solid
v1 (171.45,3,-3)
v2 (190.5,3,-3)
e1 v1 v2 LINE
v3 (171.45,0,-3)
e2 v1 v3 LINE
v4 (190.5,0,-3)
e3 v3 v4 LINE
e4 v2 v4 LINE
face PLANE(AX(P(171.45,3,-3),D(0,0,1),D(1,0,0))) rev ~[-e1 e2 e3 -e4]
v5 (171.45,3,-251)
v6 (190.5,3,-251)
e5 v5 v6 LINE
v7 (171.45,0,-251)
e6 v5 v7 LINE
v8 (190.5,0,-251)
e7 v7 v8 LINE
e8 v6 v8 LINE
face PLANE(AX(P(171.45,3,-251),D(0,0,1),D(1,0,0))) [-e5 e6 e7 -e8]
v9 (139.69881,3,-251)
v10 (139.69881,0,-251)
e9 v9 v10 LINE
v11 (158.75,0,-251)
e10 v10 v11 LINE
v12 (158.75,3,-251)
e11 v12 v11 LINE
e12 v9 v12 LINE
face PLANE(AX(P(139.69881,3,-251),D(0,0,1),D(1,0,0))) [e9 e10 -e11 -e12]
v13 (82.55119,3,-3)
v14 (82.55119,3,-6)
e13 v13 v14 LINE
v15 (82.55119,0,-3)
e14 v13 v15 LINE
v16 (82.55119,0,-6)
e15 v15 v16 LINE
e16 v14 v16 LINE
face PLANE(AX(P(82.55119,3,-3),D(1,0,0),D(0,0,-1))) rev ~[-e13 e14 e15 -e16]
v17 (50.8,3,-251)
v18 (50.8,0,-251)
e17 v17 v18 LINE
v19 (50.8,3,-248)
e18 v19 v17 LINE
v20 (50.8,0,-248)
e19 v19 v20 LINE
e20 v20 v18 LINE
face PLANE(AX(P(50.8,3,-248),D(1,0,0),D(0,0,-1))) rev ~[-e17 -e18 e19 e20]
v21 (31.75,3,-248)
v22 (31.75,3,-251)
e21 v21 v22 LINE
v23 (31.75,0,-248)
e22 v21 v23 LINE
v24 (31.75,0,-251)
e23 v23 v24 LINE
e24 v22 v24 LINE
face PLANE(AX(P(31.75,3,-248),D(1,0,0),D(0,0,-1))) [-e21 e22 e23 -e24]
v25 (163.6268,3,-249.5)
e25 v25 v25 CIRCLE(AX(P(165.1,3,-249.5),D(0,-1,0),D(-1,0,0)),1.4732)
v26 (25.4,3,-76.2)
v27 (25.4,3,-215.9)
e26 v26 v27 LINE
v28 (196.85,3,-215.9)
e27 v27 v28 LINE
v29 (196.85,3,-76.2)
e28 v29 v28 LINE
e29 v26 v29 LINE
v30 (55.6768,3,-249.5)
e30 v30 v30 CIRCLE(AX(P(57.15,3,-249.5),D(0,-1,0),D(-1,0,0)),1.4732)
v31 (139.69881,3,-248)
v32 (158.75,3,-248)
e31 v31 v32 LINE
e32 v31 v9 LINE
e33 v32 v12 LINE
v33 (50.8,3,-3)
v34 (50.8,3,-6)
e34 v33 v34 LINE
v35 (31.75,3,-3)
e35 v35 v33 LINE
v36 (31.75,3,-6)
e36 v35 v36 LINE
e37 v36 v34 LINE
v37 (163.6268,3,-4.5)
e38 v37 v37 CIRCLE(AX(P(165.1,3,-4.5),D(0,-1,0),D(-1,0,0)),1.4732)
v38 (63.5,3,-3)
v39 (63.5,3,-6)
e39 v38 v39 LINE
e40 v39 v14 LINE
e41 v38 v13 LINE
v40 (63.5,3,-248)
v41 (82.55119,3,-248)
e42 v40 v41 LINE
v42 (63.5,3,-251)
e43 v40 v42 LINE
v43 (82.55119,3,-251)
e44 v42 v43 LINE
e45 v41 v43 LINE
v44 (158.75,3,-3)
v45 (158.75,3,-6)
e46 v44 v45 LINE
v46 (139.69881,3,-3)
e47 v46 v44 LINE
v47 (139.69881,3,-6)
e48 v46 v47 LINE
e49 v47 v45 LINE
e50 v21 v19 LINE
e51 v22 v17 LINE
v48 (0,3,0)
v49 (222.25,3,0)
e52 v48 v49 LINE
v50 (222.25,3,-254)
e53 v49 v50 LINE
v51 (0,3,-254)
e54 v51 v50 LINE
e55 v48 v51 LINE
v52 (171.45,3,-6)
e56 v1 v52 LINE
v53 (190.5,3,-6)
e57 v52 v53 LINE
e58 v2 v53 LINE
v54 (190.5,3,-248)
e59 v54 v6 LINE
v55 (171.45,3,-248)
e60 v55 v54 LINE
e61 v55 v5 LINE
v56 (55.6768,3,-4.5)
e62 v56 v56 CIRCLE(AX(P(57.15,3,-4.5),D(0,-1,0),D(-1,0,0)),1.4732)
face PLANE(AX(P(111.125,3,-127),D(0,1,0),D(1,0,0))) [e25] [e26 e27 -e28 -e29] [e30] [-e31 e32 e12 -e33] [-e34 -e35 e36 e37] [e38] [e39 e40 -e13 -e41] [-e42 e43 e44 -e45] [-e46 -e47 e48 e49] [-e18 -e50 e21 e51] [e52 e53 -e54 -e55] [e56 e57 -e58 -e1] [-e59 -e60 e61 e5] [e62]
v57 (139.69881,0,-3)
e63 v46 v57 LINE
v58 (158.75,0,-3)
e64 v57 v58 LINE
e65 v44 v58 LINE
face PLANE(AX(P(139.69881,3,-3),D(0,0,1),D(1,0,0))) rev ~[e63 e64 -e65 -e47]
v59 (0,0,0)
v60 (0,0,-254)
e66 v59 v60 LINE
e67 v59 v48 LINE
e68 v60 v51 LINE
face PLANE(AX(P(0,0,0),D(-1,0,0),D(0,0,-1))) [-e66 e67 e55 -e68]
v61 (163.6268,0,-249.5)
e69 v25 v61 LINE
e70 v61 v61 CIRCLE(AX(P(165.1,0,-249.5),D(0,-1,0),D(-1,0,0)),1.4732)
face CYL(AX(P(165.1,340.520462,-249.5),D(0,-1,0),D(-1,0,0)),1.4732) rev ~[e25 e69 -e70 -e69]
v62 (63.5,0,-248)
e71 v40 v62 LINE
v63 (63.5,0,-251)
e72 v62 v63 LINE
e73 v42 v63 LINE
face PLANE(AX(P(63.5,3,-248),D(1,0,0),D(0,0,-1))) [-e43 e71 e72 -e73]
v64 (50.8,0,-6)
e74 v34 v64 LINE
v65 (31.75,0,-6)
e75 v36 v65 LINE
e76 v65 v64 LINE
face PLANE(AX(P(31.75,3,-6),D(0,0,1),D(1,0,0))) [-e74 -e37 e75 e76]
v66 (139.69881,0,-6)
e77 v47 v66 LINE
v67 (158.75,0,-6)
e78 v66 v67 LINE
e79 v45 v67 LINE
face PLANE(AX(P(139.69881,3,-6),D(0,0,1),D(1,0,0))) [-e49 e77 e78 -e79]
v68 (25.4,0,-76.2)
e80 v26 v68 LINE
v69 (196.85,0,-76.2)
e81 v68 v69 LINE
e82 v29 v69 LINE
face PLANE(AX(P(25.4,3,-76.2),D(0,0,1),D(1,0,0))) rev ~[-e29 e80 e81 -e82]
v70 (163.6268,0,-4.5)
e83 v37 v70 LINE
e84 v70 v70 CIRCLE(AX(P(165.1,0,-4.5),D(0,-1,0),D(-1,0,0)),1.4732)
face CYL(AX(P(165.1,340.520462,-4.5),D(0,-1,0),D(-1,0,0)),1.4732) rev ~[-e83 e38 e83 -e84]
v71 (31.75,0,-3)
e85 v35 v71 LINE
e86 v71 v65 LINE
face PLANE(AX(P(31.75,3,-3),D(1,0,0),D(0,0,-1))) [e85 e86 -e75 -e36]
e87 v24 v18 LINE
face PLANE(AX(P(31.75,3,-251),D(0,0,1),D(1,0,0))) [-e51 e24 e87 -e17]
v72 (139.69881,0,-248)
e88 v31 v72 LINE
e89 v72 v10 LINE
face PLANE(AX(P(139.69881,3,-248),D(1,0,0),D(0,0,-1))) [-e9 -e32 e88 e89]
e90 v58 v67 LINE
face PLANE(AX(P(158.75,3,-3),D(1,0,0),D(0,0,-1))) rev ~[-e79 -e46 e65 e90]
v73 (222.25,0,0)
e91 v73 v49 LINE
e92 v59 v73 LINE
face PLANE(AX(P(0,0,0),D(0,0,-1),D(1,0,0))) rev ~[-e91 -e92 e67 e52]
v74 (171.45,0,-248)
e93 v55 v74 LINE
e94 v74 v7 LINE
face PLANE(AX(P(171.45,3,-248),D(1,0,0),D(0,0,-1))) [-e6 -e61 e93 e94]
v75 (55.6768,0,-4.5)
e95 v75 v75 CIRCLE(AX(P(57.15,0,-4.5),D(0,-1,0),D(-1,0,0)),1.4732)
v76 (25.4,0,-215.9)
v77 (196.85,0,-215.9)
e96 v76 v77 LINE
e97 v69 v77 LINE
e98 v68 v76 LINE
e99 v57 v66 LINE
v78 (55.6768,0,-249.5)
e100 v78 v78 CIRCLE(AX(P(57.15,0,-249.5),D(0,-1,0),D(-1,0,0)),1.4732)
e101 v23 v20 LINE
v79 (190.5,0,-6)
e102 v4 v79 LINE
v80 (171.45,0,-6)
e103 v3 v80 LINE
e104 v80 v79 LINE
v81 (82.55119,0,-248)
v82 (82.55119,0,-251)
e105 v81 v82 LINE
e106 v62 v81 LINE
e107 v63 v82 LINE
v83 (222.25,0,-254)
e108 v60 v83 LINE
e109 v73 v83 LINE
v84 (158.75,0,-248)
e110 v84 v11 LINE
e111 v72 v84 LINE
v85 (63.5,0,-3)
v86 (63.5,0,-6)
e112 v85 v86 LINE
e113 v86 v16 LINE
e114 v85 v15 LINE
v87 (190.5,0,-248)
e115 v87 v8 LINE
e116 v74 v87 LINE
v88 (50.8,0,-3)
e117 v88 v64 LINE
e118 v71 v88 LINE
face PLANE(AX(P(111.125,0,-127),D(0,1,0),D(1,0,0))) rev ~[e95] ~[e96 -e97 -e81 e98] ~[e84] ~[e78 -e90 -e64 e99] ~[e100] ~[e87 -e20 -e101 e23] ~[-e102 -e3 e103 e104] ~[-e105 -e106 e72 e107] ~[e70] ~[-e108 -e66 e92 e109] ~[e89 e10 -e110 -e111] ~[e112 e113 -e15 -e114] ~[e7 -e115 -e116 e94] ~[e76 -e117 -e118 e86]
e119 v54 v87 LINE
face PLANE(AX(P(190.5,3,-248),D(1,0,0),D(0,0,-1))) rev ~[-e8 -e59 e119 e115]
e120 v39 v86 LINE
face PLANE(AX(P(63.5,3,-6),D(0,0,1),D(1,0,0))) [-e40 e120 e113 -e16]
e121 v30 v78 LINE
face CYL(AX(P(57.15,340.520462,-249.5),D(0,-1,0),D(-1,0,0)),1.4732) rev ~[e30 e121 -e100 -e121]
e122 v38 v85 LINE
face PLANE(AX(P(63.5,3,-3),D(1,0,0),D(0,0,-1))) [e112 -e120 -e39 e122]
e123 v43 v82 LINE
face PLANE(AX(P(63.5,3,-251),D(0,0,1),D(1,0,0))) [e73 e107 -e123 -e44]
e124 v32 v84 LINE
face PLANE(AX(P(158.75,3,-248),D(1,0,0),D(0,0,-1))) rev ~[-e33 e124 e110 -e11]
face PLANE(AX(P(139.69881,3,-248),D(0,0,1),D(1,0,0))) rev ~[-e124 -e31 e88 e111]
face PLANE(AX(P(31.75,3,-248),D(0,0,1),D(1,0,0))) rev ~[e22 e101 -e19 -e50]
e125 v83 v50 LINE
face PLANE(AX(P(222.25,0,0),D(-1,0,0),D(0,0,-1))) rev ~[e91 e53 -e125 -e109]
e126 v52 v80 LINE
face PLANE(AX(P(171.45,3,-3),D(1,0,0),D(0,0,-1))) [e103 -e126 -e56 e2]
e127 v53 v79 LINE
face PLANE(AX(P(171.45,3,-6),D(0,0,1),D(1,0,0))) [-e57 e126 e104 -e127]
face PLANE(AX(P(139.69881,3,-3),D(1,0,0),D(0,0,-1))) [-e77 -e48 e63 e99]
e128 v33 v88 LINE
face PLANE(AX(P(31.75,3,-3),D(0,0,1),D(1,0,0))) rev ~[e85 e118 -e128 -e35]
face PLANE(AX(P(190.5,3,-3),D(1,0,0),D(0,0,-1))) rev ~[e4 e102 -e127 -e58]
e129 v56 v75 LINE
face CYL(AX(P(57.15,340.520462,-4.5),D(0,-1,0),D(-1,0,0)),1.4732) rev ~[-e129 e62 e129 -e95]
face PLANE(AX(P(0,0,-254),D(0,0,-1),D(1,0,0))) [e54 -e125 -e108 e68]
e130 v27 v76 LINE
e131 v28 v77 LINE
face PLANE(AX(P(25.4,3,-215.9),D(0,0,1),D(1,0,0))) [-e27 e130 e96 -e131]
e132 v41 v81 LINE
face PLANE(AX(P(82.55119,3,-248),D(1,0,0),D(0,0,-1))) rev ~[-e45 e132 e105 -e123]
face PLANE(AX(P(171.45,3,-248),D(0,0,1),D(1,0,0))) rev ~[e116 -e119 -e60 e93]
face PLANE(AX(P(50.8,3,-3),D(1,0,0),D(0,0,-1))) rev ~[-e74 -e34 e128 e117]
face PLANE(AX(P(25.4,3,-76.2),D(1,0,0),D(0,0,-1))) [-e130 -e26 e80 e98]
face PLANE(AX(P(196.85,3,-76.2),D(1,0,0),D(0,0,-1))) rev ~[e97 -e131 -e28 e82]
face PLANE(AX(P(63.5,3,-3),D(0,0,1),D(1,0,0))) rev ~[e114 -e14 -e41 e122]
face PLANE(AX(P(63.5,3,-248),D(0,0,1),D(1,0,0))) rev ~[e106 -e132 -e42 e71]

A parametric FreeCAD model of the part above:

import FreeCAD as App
import Part
import Sketcher
from FreeCAD import Vector
Q = App.Units.Quantity

doc = App.newDocument("Part")
body = doc.addObject("PartDesign::Body", "Body")

sketch1 = doc.addObject("Sketcher::SketchObject", "Sketch")
body.addObject(sketch1)
sketch1.AttachmentSupport = (doc.XZ_Plane, [""])
sketch1.MapMode = "FlatFace"
sketch1.addGeometry(Part.LineSegment(Vector(0, -254, 0), Vector(0, 0, 0)), False)
sketch1.addGeometry(Part.LineSegment(Vector(0, 0, 0), Vector(222.25, 0, 0)), False)
sketch1.addGeometry(Part.LineSegment(Vector(222.25, 0, 0), Vector(222.25, -254, 0)), False)
sketch1.addGeometry(Part.LineSegment(Vector(222.25, -254, 0), Vector(0, -254, 0)), False)
sketch1.addConstraint(Sketcher.Constraint("Coincident", 0, 2, 1, 1))
sketch1.addConstraint(Sketcher.Constraint("Coincident", 1, 2, 2, 1))
sketch1.addConstraint(Sketcher.Constraint("Coincident", 2, 2, 3, 1))
sketch1.addConstraint(Sketcher.Constraint("Coincident", 3, 2, 0, 1))
sketch1.addConstraint(Sketcher.Constraint("Vertical", 0))
sketch1.addConstraint(Sketcher.Constraint("Horizontal", 1))
sketch1.addConstraint(Sketcher.Constraint("Vertical", 2))
sketch1.addConstraint(Sketcher.Constraint("Horizontal", 3))
sketch1.addConstraint(Sketcher.Constraint("Coincident", 0, 2, -1, 1))
sketch1.addConstraint(Sketcher.Constraint("DistanceY", 0, 1, 0, 2, Q("10 in")))
sketch1.addConstraint(Sketcher.Constraint("DistanceX", 1, 1, 1, 2, Q("8.75 in")))
pad1 = doc.addObject("PartDesign::Pad", "Pad")
body.addObject(pad1)
pad1.Profile = sketch1
pad1.Length = 3
pad1.Reversed = True

sketch2 = doc.addObject("Sketcher::SketchObject", "Sketch001")
body.addObject(sketch2)
sketch2.AttachmentSupport = (doc.XZ_Plane, [""])
sketch2.MapMode = "FlatFace"
sketch2.AttachmentOffset = App.Placement(Vector(0, 0, -3), App.Rotation())
sketch2.addGeometry(Part.LineSegment(Vector(31.75, -251, 0), Vector(31.75, -248, 0)), False)
sketch2.addGeometry(Part.LineSegment(Vector(31.75, -248, 0), Vector(50.8, -248, 0)), False)
sketch2.addGeometry(Part.LineSegment(Vector(50.8, -248, 0), Vector(50.8, -251, 0)), False)
sketch2.addGeometry(Part.LineSegment(Vector(50.8, -251, 0), Vector(31.75, -251, 0)), False)
sketch2.addGeometry(Part.LineSegment(Vector(63.5, -251, 0), Vector(63.5, -248, 0)), False)
sketch2.addGeometry(Part.LineSegment(Vector(63.5, -248, 0), Vector(82.55119, -248, 0)), False)
sketch2.addGeometry(Part.LineSegment(Vector(82.55119, -248, 0), Vector(82.55119, -251, 0)), False)
sketch2.addGeometry(Part.LineSegment(Vector(82.55119, -251, 0), Vector(63.5, -251, 0)), False)
sketch2.addGeometry(Part.LineSegment(Vector(139.69881, -251, 0), Vector(139.69881, -248, 0)), False)
sketch2.addGeometry(Part.LineSegment(Vector(139.69881, -248, 0), Vector(158.75, -248, 0)), False)
sketch2.addGeometry(Part.LineSegment(Vector(158.75, -248, 0), Vector(158.75, -251, 0)), False)
sketch2.addGeometry(Part.LineSegment(Vector(158.75, -251, 0), Vector(139.69881, -251, 0)), False)
sketch2.addGeometry(Part.LineSegment(Vector(171.45, -251, 0), Vector(171.45, -248, 0)), False)
sketch2.addGeometry(Part.LineSegment(Vector(171.45, -248, 0), Vector(190.5, -248, 0)), False)
sketch2.addGeometry(Part.LineSegment(Vector(190.5, -248, 0), Vector(190.5, -251, 0)), False)
sketch2.addGeometry(Part.LineSegment(Vector(190.5, -251, 0), Vector(171.45, -251, 0)), False)
sketch2.addGeometry(Part.LineSegment(Vector(31.75, -6, 0), Vector(31.75, -3, 0)), False)
sketch2.addGeometry(Part.LineSegment(Vector(31.75, -3, 0), Vector(50.8, -3, 0)), False)
sketch2.addGeometry(Part.LineSegment(Vector(50.8, -3, 0), Vector(50.8, -6, 0)), False)
sketch2.addGeometry(Part.LineSegment(Vector(50.8, -6, 0), Vector(31.75, -6, 0)), False)
sketch2.addGeometry(Part.LineSegment(Vector(63.5, -6, 0), Vector(63.5, -3, 0)), False)
sketch2.addGeometry(Part.LineSegment(Vector(63.5, -3, 0), Vector(82.55119, -3, 0)), False)
sketch2.addGeometry(Part.LineSegment(Vector(82.55119, -3, 0), Vector(82.55119, -6, 0)), False)
sketch2.addGeometry(Part.LineSegment(Vector(82.55119, -6, 0), Vector(63.5, -6, 0)), False)
sketch2.addGeometry(Part.LineSegment(Vector(171.45, -6, 0), Vector(171.45, -3, 0)), False)
sketch2.addGeometry(Part.LineSegment(Vector(171.45, -3, 0), Vector(190.5, -3, 0)), False)
sketch2.addGeometry(Part.LineSegment(Vector(190.5, -3, 0), Vector(190.5, -6, 0)), False)
sketch2.addGeometry(Part.LineSegment(Vector(190.5, -6, 0), Vector(171.45, -6, 0)), False)
sketch2.addGeometry(Part.LineSegment(Vector(139.69881, -6, 0), Vector(139.69881, -3, 0)), False)
sketch2.addGeometry(Part.LineSegment(Vector(139.69881, -3, 0), Vector(158.75, -3, 0)), False)
sketch2.addGeometry(Part.LineSegment(Vector(158.75, -3, 0), Vector(158.75, -6, 0)), False)
sketch2.addGeometry(Part.LineSegment(Vector(158.75, -6, 0), Vector(139.69881, -6, 0)), False)
sketch2.addConstraint(Sketcher.Constraint("Coincident", 0, 2, 1, 1))
sketch2.addConstraint(Sketcher.Constraint("Coincident", 1, 2, 2, 1))
sketch2.addConstraint(Sketcher.Constraint("Coincident", 2, 2, 3, 1))
sketch2.addConstraint(Sketcher.Constraint("Coincident", 3, 2, 0, 1))
sketch2.addConstraint(Sketcher.Constraint("Coincident", 4, 2, 5, 1))
sketch2.addConstraint(Sketcher.Constraint("Coincident", 5, 2, 6, 1))
sketch2.addConstraint(Sketcher.Constraint("Coincident", 6, 2, 7, 1))
sketch2.addConstraint(Sketcher.Constraint("Coincident", 7, 2, 4, 1))
sketch2.addConstraint(Sketcher.Constraint("Coincident", 8, 2, 9, 1))
sketch2.addConstraint(Sketcher.Constraint("Coincident", 9, 2, 10, 1))
sketch2.addConstraint(Sketcher.Constraint("Coincident", 10, 2, 11, 1))
sketch2.addConstraint(Sketcher.Constraint("Coincident", 11, 2, 8, 1))
sketch2.addConstraint(Sketcher.Constraint("Coincident", 12, 2, 13, 1))
sketch2.addConstraint(Sketcher.Constraint("Coincident", 13, 2, 14, 1))
sketch2.addConstraint(Sketcher.Constraint("Coincident", 14, 2, 15, 1))
sketch2.addConstraint(Sketcher.Constraint("Coincident", 15, 2, 12, 1))
sketch2.addConstraint(Sketcher.Constraint("Coincident", 16, 2, 17, 1))
sketch2.addConstraint(Sketcher.Constraint("Coincident", 17, 2, 18, 1))
sketch2.addConstraint(Sketcher.Constraint("Coincident", 18, 2, 19, 1))
sketch2.addConstraint(Sketcher.Constraint("Coincident", 19, 2, 16, 1))
sketch2.addConstraint(Sketcher.Constraint("Coincident", 20, 2, 21, 1))
sketch2.addConstraint(Sketcher.Constraint("Coincident", 21, 2, 22, 1))
sketch2.addConstraint(Sketcher.Constraint("Coincident", 22, 2, 23, 1))
sketch2.addConstraint(Sketcher.Constraint("Coincident", 23, 2, 20, 1))
sketch2.addConstraint(Sketcher.Constraint("Coincident", 24, 2, 25, 1))
sketch2.addConstraint(Sketcher.Constraint("Coincident", 25, 2, 26, 1))
sketch2.addConstraint(Sketcher.Constraint("Coincident", 26, 2, 27, 1))
sketch2.addConstraint(Sketcher.Constraint("Coincident", 27, 2, 24, 1))
sketch2.addConstraint(Sketcher.Constraint("Coincident", 28, 2, 29, 1))
sketch2.addConstraint(Sketcher.Constraint("Coincident", 29, 2, 30, 1))
sketch2.addConstraint(Sketcher.Constraint("Coincident", 30, 2, 31, 1))
sketch2.addConstraint(Sketcher.Constraint("Coincident", 31, 2, 28, 1))
sketch2.addConstraint(Sketcher.Constraint("Vertical", 0))
sketch2.addConstraint(Sketcher.Constraint("Horizontal", 1))
sketch2.addConstraint(Sketcher.Constraint("Vertical", 2))
sketch2.addConstraint(Sketcher.Constraint("Horizontal", 3))
sketch2.addConstraint(Sketcher.Constraint("Vertical", 4))
sketch2.addConstraint(Sketcher.Constraint("Horizontal", 5))
sketch2.addConstraint(Sketcher.Constraint("Vertical", 6))
sketch2.addConstraint(Sketcher.Constraint("Horizontal", 7))
sketch2.addConstraint(Sketcher.Constraint("Vertical", 8))
sketch2.addConstraint(Sketcher.Constraint("Horizontal", 9))
sketch2.addConstraint(Sketcher.Constraint("Vertical", 10))
sketch2.addConstraint(Sketcher.Constraint("Horizontal", 11))
sketch2.addConstraint(Sketcher.Constraint("Vertical", 12))
sketch2.addConstraint(Sketcher.Constraint("Horizontal", 13))
sketch2.addConstraint(Sketcher.Constraint("Vertical", 14))
sketch2.addConstraint(Sketcher.Constraint("Horizontal", 15))
sketch2.addConstraint(Sketcher.Constraint("Vertical", 16))
sketch2.addConstraint(Sketcher.Constraint("Horizontal", 17))
sketch2.addConstraint(Sketcher.Constraint("Vertical", 18))
sketch2.addConstraint(Sketcher.Constraint("Horizontal", 19))
sketch2.addConstraint(Sketcher.Constraint("Vertical", 20))
sketch2.addConstraint(Sketcher.Constraint("Horizontal", 21))
sketch2.addConstraint(Sketcher.Constraint("Vertical", 22))
sketch2.addConstraint(Sketcher.Constraint("Horizontal", 23))
sketch2.addConstraint(Sketcher.Constraint("Vertical", 24))
sketch2.addConstraint(Sketcher.Constraint("Horizontal", 25))
sketch2.addConstraint(Sketcher.Constraint("Vertical", 26))
sketch2.addConstraint(Sketcher.Constraint("Horizontal", 27))
sketch2.addConstraint(Sketcher.Constraint("Vertical", 28))
sketch2.addConstraint(Sketcher.Constraint("Horizontal", 29))
sketch2.addConstraint(Sketcher.Constraint("Vertical", 30))
sketch2.addConstraint(Sketcher.Constraint("Horizontal", 31))
sketch2.addConstraint(Sketcher.Constraint("Horizontal", 1, 2, 4, 2))
sketch2.addConstraint(Sketcher.Constraint("Horizontal", 3, 2, 6, 2))
sketch2.addConstraint(Sketcher.Constraint("Horizontal", 5, 2, 8, 2))
sketch2.addConstraint(Sketcher.Constraint("Horizontal", 7, 2, 10, 2))
sketch2.addConstraint(Sketcher.Constraint("Horizontal", 9, 2, 12, 2))
sketch2.addConstraint(Sketcher.Constraint("Horizontal", 11, 2, 14, 2))
sketch2.addConstraint(Sketcher.Constraint("Horizontal", 17, 2, 20, 2))
sketch2.addConstraint(Sketcher.Constraint("Horizontal", 19, 2, 22, 2))
sketch2.addConstraint(Sketcher.Constraint("Horizontal", 21, 2, 24, 2))
sketch2.addConstraint(Sketcher.Constraint("Horizontal", 23, 2, 26, 2))
sketch2.addConstraint(Sketcher.Constraint("Horizontal", 25, 2, 28, 2))
sketch2.addConstraint(Sketcher.Constraint("Horizontal", 27, 2, 30, 2))
sketch2.addConstraint(Sketcher.Constraint("Vertical", 3, 2, 16, 2))
sketch2.addConstraint(Sketcher.Constraint("Vertical", 2, 2, 17, 2))
sketch2.addConstraint(Sketcher.Constraint("Vertical", 7, 2, 20, 2))
sketch2.addConstraint(Sketcher.Constraint("Vertical", 6, 2, 21, 2))
sketch2.addConstraint(Sketcher.Constraint("Vertical", 15, 2, 24, 2))
sketch2.addConstraint(Sketcher.Constraint("Vertical", 14, 2, 25, 2))
sketch2.addConstraint(Sketcher.Constraint("Vertical", 11, 2, 28, 2))
sketch2.addConstraint(Sketcher.Constraint("Vertical", 10, 2, 29, 2))
sketch2.addConstraint(Sketcher.Constraint("Equal", 7, 9))
sketch2.addConstraint(Sketcher.Constraint("Equal", 3, 13))
sketch2.addConstraint(Sketcher.Constraint("Equal", 14, 16))
sketch2.addConstraint(Sketcher.Constraint("DistanceX", -1, 1, 1, 2, Q("2 in")))
sketch2.addConstraint(Sketcher.Constraint("DistanceX", 20, 2, 25, 2, Q("5 in")))
sketch2.addConstraint(Sketcher.Constraint("DistanceX", 1, 1, 1, 2, Q("0.75 in")))
sketch2.addConstraint(Sketcher.Constraint("DistanceX", -1, 1, 4, 2, Q("2.5 in")))
sketch2.addConstraint(Sketcher.Constraint("DistanceX", 9, 2, 12, 2, Q("0.5 in")))
sketch2.addConstraint(Sketcher.Constraint("DistanceY", 0, 1, 0, 2, Q("3 mm")))
sketch2.addConstraint(Sketcher.Constraint("DistanceX", 5, 1, 5, 2, Q("19.05119 mm")))
sketch2.addConstraint(Sketcher.Constraint("DistanceY", 0, 2, -1, 1, Q("248 mm")))
sketch2.addConstraint(Sketcher.Constraint("DistanceY", 16, 2, -1, 1, Q("3 mm")))
pocket1 = doc.addObject("PartDesign::Pocket", "Pocket")
body.addObject(pocket1)
pocket1.Profile = sketch2
pocket1.Type = "ThroughAll"
pocket1.Reversed = True

sketch3 = doc.addObject("Sketcher::SketchObject", "Sketch002")
body.addObject(sketch3)
sketch3.AttachmentSupport = (doc.XZ_Plane, [""])
sketch3.MapMode = "FlatFace"
sketch3.AttachmentOffset = App.Placement(Vector(0, 0, -3), App.Rotation())
sketch3.addGeometry(Part.Circle(Vector(57.15, -249.5, 0), Vector(0, 0, 1), 1.4732), False)
sketch3.addGeometry(Part.Circle(Vector(165.1, -249.5, 0), Vector(0, 0, 1), 1.4732), False)
sketch3.addGeometry(Part.Circle(Vector(165.1, -4.5, 0), Vector(0, 0, 1), 1.4732), False)
sketch3.addGeometry(Part.Circle(Vector(57.15, -4.5, 0), Vector(0, 0, 1), 1.4732), False)
sketch3.addConstraint(Sketcher.Constraint("Equal", 0, 1))
sketch3.addConstraint(Sketcher.Constraint("Equal", 1, 2))
sketch3.addConstraint(Sketcher.Constraint("Equal", 2, 3))
sketch3.addConstraint(Sketcher.Constraint("Horizontal", 0, 3, 1, 3))
sketch3.addConstraint(Sketcher.Constraint("Horizontal", 2, 3, 3, 3))
sketch3.addConstraint(Sketcher.Constraint("Vertical", 1, 3, 2, 3))
sketch3.addConstraint(Sketcher.Constraint("Vertical", 0, 3, 3, 3))
sketch3.addConstraint(Sketcher.Constraint("Diameter", 0, Q("0.116 in")))
sketch3.addConstraint(Sketcher.Constraint("DistanceX", -1, 1, 1, 3, Q("6.5 in")))
sketch3.addConstraint(Sketcher.Constraint("DistanceX", -1, 1, 0, 3, Q("2.25 in")))
sketch3.addConstraint(Sketcher.Constraint("DistanceY", 0, 3, -1, 1, Q("249.5 mm")))
sketch3.addConstraint(Sketcher.Constraint("DistanceY", 2, 3, -1, 1, Q("4.5 mm")))
doc.recompute()
hole = doc.addObject("PartDesign::Hole", "Hole")
body.addObject(hole)
hole.Profile = sketch3
hole.ThreadType = "None"
hole.Diameter = Q("0.116 in")
hole.DepthType = "ThroughAll"
hole.Reversed = True

sketch4 = doc.addObject("Sketcher::SketchObject", "Sketch003")
body.addObject(sketch4)
sketch4.AttachmentSupport = (doc.XZ_Plane, [""])
sketch4.MapMode = "FlatFace"
sketch4.AttachmentOffset = App.Placement(Vector(0, 0, -3), App.Rotation())
sketch4.addGeometry(Part.LineSegment(Vector(25.4, -215.9, 0), Vector(25.4, -76.2, 0)), False)
sketch4.addGeometry(Part.LineSegment(Vector(25.4, -76.2, 0), Vector(196.85, -76.2, 0)), False)
sketch4.addGeometry(Part.LineSegment(Vector(196.85, -76.2, 0), Vector(196.85, -215.9, 0)), False)
sketch4.addGeometry(Part.LineSegment(Vector(196.85, -215.9, 0), Vector(25.4, -215.9, 0)), False)
sketch4.addConstraint(Sketcher.Constraint("Coincident", 0, 2, 1, 1))
sketch4.addConstraint(Sketcher.Constraint("Coincident", 1, 2, 2, 1))
sketch4.addConstraint(Sketcher.Constraint("Coincident", 2, 2, 3, 1))
sketch4.addConstraint(Sketcher.Constraint("Coincident", 3, 2, 0, 1))
sketch4.addConstraint(Sketcher.Constraint("Vertical", 0))
sketch4.addConstraint(Sketcher.Constraint("Horizontal", 1))
sketch4.addConstraint(Sketcher.Constraint("Vertical", 2))
sketch4.addConstraint(Sketcher.Constraint("Horizontal", 3))
sketch4.addConstraint(Sketcher.Constraint("DistanceY", 0, 1, 0, 2, Q("5.5 in")))
sketch4.addConstraint(Sketcher.Constraint("DistanceX", -1, 1, 0, 2, Q("1 in")))
sketch4.addConstraint(Sketcher.Constraint("DistanceY", 0, 2, -1, 1, Q("3 in")))
sketch4.addConstraint(Sketcher.Constraint("DistanceX", 1, 1, 1, 2, Q("6.75 in")))
pocket2 = doc.addObject("PartDesign::Pocket", "Pocket001")
body.addObject(pocket2)
pocket2.Profile = sketch4
pocket2.Type = "ThroughAll"
pocket2.Reversed = True

doc.recompute()
